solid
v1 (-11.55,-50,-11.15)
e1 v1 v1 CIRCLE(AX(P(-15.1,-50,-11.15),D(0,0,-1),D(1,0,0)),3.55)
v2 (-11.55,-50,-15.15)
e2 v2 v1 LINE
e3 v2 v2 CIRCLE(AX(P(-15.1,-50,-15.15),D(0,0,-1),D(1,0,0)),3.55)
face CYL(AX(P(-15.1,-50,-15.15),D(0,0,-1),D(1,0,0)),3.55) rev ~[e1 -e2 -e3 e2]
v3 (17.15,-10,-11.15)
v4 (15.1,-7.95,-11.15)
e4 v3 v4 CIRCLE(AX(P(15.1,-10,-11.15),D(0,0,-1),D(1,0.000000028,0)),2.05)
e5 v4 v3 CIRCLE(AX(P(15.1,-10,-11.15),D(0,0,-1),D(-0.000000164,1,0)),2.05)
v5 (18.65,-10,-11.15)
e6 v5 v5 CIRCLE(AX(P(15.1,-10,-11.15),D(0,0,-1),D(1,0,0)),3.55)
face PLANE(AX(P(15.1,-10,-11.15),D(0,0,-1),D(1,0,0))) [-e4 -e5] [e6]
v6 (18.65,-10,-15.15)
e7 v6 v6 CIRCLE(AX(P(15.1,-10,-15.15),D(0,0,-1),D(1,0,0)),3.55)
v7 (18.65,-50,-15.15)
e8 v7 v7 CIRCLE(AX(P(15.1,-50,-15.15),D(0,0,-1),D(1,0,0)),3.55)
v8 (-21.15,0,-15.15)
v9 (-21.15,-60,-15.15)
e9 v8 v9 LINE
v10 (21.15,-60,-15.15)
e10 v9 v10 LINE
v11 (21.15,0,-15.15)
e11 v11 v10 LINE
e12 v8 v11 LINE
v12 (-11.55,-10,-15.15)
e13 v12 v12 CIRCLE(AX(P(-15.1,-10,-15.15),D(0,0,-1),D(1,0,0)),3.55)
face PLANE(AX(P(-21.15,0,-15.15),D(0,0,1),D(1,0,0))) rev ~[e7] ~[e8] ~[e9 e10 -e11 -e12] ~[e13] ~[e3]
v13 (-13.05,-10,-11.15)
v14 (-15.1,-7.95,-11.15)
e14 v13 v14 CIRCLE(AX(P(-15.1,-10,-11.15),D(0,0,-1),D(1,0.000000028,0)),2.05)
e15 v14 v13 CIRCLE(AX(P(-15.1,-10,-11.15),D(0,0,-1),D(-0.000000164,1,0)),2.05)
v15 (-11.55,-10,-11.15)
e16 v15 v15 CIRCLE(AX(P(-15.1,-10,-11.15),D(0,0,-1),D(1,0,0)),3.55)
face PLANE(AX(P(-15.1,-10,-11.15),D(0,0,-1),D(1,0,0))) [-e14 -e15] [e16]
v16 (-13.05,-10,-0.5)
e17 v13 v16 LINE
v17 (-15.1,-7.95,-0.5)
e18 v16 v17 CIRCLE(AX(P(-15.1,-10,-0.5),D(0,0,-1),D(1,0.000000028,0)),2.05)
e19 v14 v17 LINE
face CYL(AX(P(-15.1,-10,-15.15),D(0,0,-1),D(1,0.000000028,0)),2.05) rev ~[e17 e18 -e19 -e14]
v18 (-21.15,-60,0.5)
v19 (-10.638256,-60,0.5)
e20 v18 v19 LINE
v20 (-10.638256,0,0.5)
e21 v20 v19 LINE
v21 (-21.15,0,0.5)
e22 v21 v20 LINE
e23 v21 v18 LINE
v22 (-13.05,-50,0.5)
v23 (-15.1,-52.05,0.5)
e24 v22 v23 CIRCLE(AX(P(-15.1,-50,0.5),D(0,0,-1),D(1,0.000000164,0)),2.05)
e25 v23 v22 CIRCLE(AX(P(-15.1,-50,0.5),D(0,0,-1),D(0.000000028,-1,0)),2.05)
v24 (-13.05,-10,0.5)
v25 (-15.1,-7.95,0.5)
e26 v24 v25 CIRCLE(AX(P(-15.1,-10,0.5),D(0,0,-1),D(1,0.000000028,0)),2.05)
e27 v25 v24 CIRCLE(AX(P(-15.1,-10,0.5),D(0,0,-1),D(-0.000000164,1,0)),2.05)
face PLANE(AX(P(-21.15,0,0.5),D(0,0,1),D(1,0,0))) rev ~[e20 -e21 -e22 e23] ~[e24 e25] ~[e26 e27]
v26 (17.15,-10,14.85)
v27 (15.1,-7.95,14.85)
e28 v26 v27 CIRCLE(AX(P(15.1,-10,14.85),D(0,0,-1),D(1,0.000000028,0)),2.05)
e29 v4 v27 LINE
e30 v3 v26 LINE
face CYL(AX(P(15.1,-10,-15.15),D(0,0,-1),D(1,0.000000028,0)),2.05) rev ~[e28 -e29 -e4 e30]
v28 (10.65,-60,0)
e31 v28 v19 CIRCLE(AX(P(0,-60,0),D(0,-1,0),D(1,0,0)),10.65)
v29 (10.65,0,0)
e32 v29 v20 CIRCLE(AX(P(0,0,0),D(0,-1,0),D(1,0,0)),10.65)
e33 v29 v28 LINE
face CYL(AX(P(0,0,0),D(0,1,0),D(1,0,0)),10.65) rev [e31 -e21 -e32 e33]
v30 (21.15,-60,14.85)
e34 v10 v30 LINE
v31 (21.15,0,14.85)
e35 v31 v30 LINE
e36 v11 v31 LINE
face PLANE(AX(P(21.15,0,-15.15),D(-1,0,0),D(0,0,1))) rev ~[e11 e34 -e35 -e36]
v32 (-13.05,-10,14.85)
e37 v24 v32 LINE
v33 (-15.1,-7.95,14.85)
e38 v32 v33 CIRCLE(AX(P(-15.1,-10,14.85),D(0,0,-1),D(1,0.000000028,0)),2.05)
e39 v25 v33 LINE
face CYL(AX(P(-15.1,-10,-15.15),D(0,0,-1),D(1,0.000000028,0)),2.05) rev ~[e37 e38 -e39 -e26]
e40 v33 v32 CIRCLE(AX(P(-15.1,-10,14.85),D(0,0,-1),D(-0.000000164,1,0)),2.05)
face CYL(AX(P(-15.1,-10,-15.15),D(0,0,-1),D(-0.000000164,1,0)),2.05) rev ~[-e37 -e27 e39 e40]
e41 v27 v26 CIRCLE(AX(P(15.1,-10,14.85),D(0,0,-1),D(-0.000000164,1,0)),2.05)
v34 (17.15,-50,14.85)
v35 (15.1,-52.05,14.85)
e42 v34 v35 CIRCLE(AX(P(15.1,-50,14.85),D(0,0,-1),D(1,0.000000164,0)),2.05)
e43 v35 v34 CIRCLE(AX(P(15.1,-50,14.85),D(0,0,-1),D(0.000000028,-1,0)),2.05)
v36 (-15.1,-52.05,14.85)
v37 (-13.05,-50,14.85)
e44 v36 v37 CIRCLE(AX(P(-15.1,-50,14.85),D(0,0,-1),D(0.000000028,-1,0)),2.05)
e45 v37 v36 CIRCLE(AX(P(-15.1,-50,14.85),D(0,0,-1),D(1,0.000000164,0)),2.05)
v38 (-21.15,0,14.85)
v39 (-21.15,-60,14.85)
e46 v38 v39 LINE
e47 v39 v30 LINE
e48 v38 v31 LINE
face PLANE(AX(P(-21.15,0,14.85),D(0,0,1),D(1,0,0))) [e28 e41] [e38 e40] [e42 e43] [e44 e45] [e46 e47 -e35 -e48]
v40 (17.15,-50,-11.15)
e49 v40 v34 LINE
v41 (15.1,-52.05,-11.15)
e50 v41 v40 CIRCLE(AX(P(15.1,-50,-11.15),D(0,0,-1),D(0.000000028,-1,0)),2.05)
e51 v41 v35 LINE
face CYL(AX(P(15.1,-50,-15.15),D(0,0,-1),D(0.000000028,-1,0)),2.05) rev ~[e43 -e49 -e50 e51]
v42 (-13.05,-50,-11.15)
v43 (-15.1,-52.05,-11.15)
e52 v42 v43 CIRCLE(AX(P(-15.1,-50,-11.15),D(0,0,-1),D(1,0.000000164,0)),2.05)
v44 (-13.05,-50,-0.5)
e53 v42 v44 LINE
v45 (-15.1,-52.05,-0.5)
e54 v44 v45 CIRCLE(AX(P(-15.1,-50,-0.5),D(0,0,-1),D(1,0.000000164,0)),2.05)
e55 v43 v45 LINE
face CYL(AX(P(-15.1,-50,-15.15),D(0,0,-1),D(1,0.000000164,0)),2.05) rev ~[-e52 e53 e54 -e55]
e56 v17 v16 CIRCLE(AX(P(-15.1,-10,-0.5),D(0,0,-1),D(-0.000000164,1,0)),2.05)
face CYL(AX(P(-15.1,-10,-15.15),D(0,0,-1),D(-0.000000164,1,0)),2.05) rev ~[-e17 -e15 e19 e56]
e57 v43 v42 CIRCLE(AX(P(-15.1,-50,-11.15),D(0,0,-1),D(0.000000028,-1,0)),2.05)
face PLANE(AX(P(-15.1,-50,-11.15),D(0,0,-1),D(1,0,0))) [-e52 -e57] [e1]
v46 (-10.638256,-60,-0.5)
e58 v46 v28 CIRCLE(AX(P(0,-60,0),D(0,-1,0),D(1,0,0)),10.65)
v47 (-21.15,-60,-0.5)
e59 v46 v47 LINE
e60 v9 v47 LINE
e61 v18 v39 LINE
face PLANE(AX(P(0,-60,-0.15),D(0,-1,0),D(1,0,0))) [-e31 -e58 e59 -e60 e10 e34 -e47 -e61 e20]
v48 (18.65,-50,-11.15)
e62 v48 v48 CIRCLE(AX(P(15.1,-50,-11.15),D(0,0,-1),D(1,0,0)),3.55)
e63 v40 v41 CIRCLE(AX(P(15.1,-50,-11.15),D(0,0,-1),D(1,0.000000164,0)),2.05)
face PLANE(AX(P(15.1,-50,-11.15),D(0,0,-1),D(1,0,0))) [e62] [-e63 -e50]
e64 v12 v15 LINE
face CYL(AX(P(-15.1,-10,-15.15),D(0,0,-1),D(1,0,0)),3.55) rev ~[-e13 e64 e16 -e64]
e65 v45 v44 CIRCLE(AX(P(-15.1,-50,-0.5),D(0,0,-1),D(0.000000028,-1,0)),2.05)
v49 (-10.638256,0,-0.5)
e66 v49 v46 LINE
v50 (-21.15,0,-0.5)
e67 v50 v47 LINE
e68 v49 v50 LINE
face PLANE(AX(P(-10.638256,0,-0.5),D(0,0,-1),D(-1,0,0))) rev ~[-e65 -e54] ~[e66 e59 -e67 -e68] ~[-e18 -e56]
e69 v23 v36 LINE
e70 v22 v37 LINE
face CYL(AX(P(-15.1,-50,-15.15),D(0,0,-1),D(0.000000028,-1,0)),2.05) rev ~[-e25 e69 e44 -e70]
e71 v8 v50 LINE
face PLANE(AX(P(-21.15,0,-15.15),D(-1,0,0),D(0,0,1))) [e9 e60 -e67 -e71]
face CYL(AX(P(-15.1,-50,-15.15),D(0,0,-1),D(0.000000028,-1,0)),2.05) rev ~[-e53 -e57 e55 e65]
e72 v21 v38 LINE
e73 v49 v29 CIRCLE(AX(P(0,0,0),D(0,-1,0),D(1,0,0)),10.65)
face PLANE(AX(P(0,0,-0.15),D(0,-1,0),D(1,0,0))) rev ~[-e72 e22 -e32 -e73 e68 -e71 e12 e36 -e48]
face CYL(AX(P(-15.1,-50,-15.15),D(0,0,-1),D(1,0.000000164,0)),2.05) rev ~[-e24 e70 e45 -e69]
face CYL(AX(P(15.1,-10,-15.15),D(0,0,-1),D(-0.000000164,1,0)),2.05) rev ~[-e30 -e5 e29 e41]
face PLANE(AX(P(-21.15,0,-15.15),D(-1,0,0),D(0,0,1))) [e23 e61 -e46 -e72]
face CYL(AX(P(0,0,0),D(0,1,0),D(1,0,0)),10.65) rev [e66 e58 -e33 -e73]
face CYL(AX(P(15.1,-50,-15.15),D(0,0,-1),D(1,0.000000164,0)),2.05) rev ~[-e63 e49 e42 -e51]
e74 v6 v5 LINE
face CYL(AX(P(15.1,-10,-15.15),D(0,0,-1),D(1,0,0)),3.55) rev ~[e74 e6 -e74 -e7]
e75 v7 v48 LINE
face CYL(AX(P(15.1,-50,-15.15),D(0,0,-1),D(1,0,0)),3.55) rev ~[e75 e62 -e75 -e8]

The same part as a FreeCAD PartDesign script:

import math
import FreeCAD as App
import Part
import Sketcher

doc = App.newDocument("Part")
body = doc.addObject("PartDesign::Body", "Body")

sketch1 = body.newObject("Sketcher::SketchObject", "Sketch")
sketch1.AttachmentSupport = (doc.getObject("XZ_Plane"), [""])
sketch1.MapMode = "FlatFace"
sketch1.addGeometry(Part.LineSegment(App.Vector(-21, 15, 0), App.Vector(-21, -15, 0)), False)
sketch1.addGeometry(Part.LineSegment(App.Vector(-21, -15, 0), App.Vector(21, -15, 0)), False)
sketch1.addGeometry(Part.LineSegment(App.Vector(21, -15, 0), App.Vector(21, 15, 0)), False)
sketch1.addGeometry(Part.LineSegment(App.Vector(21, 15, 0), App.Vector(-21, 15, 0)), False)
sketch1.addGeometry(Part.Circle(App.Vector(0, 0, 0), App.Vector(0, 0, 1), 11), False)
sketch1.addConstraint(Sketcher.Constraint("Coincident", 0, 2, 1, 1))
sketch1.addConstraint(Sketcher.Constraint("Coincident", 1, 2, 2, 1))
sketch1.addConstraint(Sketcher.Constraint("Coincident", 2, 2, 3, 1))
sketch1.addConstraint(Sketcher.Constraint("Coincident", 3, 2, 0, 1))
sketch1.addConstraint(Sketcher.Constraint("Vertical", 0))
sketch1.addConstraint(Sketcher.Constraint("Horizontal", 1))
sketch1.addConstraint(Sketcher.Constraint("Vertical", 2))
sketch1.addConstraint(Sketcher.Constraint("Horizontal", 3))
sketch1.addConstraint(Sketcher.Constraint("Coincident", 4, 3, -1, 1))
sketch1.addConstraint(Sketcher.Constraint("Diameter", 4, 21.3))
sketch1.addConstraint(Sketcher.Constraint("DistanceY", 0, 2, 0, 1, 30.0))
sketch1.addConstraint(Sketcher.Constraint("DistanceX", 1, 1, 1, 2, 42.3))
sketch1.addConstraint(Sketcher.Constraint("DistanceX", 0, 2, -1, 1, 21.15))
sketch1.addConstraint(Sketcher.Constraint("DistanceY", 0, 2, -1, 1, 15.15))
pad1 = body.newObject("PartDesign::Pad", "Pad")
pad1.Profile = sketch1
pad1.Length = 60

sketch2 = body.newObject("Sketcher::SketchObject", "Sketch001")
sketch2.AttachmentSupport = (doc.getObject("XY_Plane"), [""])
sketch2.MapMode = "FlatFace"
sketch2.AttachmentOffset = App.Placement(App.Vector(0, 0, -15.15), App.Rotation())
sketch2.addGeometry(Part.ArcOfCircle(Part.Circle(App.Vector(-15.1, -50, 0), App.Vector(0, 0, 1), 2.1), math.radians(0), math.radians(270)), False)
sketch2.addGeometry(Part.ArcOfCircle(Part.Circle(App.Vector(-15.1, -50, 0), App.Vector(0, 0, 1), 2), math.radians(-90), math.radians(0)), False)
sketch2.addGeometry(Part.ArcOfCircle(Part.Circle(App.Vector(15.1, -50, 0), App.Vector(0, 0, 1), 2.1), math.radians(0), math.radians(270)), False)
sketch2.addGeometry(Part.ArcOfCircle(Part.Circle(App.Vector(15.1, -50, 0), App.Vector(0, 0, 1), 2), math.radians(-90), math.radians(0)), False)
sketch2.addGeometry(Part.ArcOfCircle(Part.Circle(App.Vector(-15.1, -10, 0), App.Vector(0, 0, 1), 2), math.radians(0), math.radians(90)), False)
sketch2.addGeometry(Part.ArcOfCircle(Part.Circle(App.Vector(-15.1, -10, 0), App.Vector(0, 0, 1), 2.1), math.radians(90), math.radians(360)), False)
sketch2.addGeometry(Part.ArcOfCircle(Part.Circle(App.Vector(15.1, -10, 0), App.Vector(0, 0, 1), 2), math.radians(0), math.radians(90)), False)
sketch2.addGeometry(Part.ArcOfCircle(Part.Circle(App.Vector(15.1, -10, 0), App.Vector(0, 0, 1), 2.1), math.radians(90), math.radians(360)), False)
sketch2.addConstraint(Sketcher.Constraint("Tangent", 0, 1, 1, 2))
sketch2.addConstraint(Sketcher.Constraint("Coincident", 1, 1, 0, 2))
sketch2.addConstraint(Sketcher.Constraint("Tangent", 2, 1, 3, 2))
sketch2.addConstraint(Sketcher.Constraint("Coincident", 3, 1, 2, 2))
sketch2.addConstraint(Sketcher.Constraint("Tangent", 4, 1, 5, 2))
sketch2.addConstraint(Sketcher.Constraint("Coincident", 5, 1, 4, 2))
sketch2.addConstraint(Sketcher.Constraint("Tangent", 6, 1, 7, 2))
sketch2.addConstraint(Sketcher.Constraint("Coincident", 7, 1, 6, 2))
sketch2.addConstraint(Sketcher.Constraint("Equal", 1, 2))
sketch2.addConstraint(Sketcher.Constraint("Equal", 3, 4))
sketch2.addConstraint(Sketcher.Constraint("Equal", 5, 6))
sketch2.addConstraint(Sketcher.Constraint("Symmetric", 0, 3, 2, 3, -2))
sketch2.addConstraint(Sketcher.Constraint("Symmetric", 4, 3, 6, 3, -2))
sketch2.addConstraint(Sketcher.Constraint("Horizontal", 3, 3, 0, 1))
sketch2.addConstraint(Sketcher.Constraint("Horizontal", 0, 1, 2, 1))
sketch2.addConstraint(Sketcher.Constraint("Horizontal", 7, 3, 4, 1))
sketch2.addConstraint(Sketcher.Constraint("Horizontal", 4, 1, 6, 1))
sketch2.addConstraint(Sketcher.Constraint("Vertical", 1, 3, 4, 3))
sketch2.addConstraint(Sketcher.Constraint("Vertical", 5, 3, 1, 1))
sketch2.addConstraint(Sketcher.Constraint("Vertical", 7, 3, 3, 1))
sketch2.addConstraint(Sketcher.Constraint("Vertical", 1, 1, 5, 1))
sketch2.addConstraint(Sketcher.Constraint("Vertical", 3, 1, 7, 1))
sketch2.addConstraint(Sketcher.Constraint("Radius", 0, 2.05))
sketch2.addConstraint(Sketcher.Constraint("DistanceY", 0, 3, -1, 1, 50.0))
sketch2.addConstraint(Sketcher.Constraint("DistanceY", 4, 3, -1, 1, 10.0))
sketch2.addConstraint(Sketcher.Constraint("DistanceX", 0, 3, -1, 1, 15.1))
pocket1 = body.newObject("PartDesign::Pocket", "Pocket")
pocket1.Profile = sketch2
pocket1.Length = 30
pocket1.Reversed = True

sketch3 = body.newObject("Sketcher::SketchObject", "Sketch002")
sketch3.AttachmentSupport = (doc.getObject("XY_Plane"), [""])
sketch3.MapMode = "FlatFace"
sketch3.AttachmentOffset = App.Placement(App.Vector(0, 0, -15.15), App.Rotation())
sketch3.addGeometry(Part.Circle(App.Vector(-15.1, -50, 0), App.Vector(0, 0, 1), 3.5), False)
sketch3.addGeometry(Part.Circle(App.Vector(15.1, -50, 0), App.Vector(0, 0, 1), 3.5), False)
sketch3.addGeometry(Part.Circle(App.Vector(-15.1, -10, 0), App.Vector(0, 0, 1), 3.5), False)
sketch3.addGeometry(Part.Circle(App.Vector(15.1, -10, 0), App.Vector(0, 0, 1), 3.5), False)
sketch3.addConstraint(Sketcher.Constraint("Equal", 0, 1))
sketch3.addConstraint(Sketcher.Constraint("Equal", 1, 2))
sketch3.addConstraint(Sketcher.Constraint("Equal", 2, 3))
sketch3.addConstraint(Sketcher.Constraint("Symmetric", 0, 3, 1, 3, -2))
sketch3.addConstraint(Sketcher.Constraint("Symmetric", 2, 3, 3, 3, -2))
sketch3.addConstraint(Sketcher.Constraint("Vertical", 0, 3, 2, 3))
sketch3.addConstraint(Sketcher.Constraint("Diameter", 0, 7.1))
sketch3.addConstraint(Sketcher.Constraint("DistanceY", 0, 3, -1, 1, 50.0))
sketch3.addConstraint(Sketcher.Constraint("DistanceY", 2, 3, -1, 1, 10.0))
sketch3.addConstraint(Sketcher.Constraint("DistanceX", 0, 3, -1, 1, 15.1))
pocket2 = body.newObject("PartDesign::Pocket", "Pocket001")
pocket2.Profile = sketch3
pocket2.Length = 4
pocket2.Reversed = True

sketch4 = body.newObject("Sketcher::SketchObject", "Sketch003")
sketch4.AttachmentSupport = (doc.getObject("XZ_Plane"), [""])
sketch4.MapMode = "FlatFace"
sketch4.addGeometry(Part.LineSegment(App.Vector(-21.1, -0.5, 0), App.Vector(-21.1, 0.5, 0)), False)
sketch4.addGeometry(Part.LineSegment(App.Vector(-21.1, 0.5, 0), App.Vector(-10.6, 0.5, 0)), False)
sketch4.addGeometry(Part.ArcOfCircle(Part.Circle(App.Vector(0, 0, 0), App.Vector(0, 0, 1), 10.6), math.radians(177.31), math.radians(180)), False)
sketch4.addGeometry(Part.ArcOfCircle(Part.Circle(App.Vector(0, 0, 0), App.Vector(0, 0, 1), 10.6), math.radians(180), math.radians(182.69)), False)
sketch4.addGeometry(Part.LineSegment(App.Vector(-10.6, -0.5, 0), App.Vector(-21.1, -0.5, 0)), False)
sketch4.addConstraint(Sketcher.Constraint("Coincident", 0, 2, 1, 1))
sketch4.addConstraint(Sketcher.Constraint("Coincident", 1, 2, 2, 1))
sketch4.addConstraint(Sketcher.Constraint("Coincident", 2, 2, 3, 1))
sketch4.addConstraint(Sketcher.Constraint("Coincident", 3, 2, 4, 1))
sketch4.addConstraint(Sketcher.Constraint("Coincident", 4, 2, 0, 1))
sketch4.addConstraint(Sketcher.Constraint("Vertical", 0))
sketch4.addConstraint(Sketcher.Constraint("Horizontal", 1))
sketch4.addConstraint(Sketcher.Constraint("Horizontal", 4))
sketch4.addConstraint(Sketcher.Constraint("Equal", 2, 3))
sketch4.addConstraint(Sketcher.Constraint("Symmetric", 1, 2, 3, 2, -1))
sketch4.addConstraint(Sketcher.Constraint("PointOnObject", 2, 2, -1))
sketch4.addConstraint(Sketcher.Constraint("DistanceY", 0, 1, 0, 2, 1.0))
sketch4.addConstraint(Sketcher.Constraint("DistanceX", 0, 2, 2, 2, 10.5))
sketch4.addConstraint(Sketcher.Constraint("DistanceX", 0, 2, -1, 1, 21.15))
sketch4.addConstraint(Sketcher.Constraint("Radius", 2, 10.648134))
sketch4.addConstraint(Sketcher.Constraint("DistanceX", 1, 1, 1, 2, 10.511744))
pocket3 = body.newObject("PartDesign::Pocket", "Pocket002")
pocket3.Profile = sketch4
pocket3.Length = 60
pocket3.Reversed = True

doc.recompute()
